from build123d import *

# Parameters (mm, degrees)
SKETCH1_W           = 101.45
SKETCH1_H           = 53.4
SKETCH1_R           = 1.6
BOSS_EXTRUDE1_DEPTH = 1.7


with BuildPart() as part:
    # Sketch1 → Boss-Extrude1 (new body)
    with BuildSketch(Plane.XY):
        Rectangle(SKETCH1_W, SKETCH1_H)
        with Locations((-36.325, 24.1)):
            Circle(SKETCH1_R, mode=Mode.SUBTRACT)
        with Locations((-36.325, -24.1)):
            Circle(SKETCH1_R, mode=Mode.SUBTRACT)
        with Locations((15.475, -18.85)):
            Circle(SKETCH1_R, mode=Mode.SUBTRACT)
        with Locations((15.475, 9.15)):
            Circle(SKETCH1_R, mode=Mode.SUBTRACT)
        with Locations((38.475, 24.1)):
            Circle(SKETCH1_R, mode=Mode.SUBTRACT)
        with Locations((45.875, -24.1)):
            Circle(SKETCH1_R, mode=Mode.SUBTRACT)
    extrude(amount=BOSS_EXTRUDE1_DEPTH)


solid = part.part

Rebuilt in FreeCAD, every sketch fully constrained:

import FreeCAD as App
import Part
import Sketcher
from FreeCAD import Vector
Q = App.Units.Quantity

doc = App.newDocument("Part")
body = doc.addObject("PartDesign::Body", "Body")

# Sketch on XY plane
sketch1 = body.newObject("Sketcher::SketchObject", "Sketch")
sketch1.AttachmentSupport = (doc.getObject("XY_Plane"), [""])
sketch1.MapMode = "FlatFace"
sketch1.addGeometry([
    Part.LineSegment(Vector(-50.7, 26.7, 0), Vector(-50.7, -26.7, 0)),  # 0
    Part.LineSegment(Vector(-50.7, -26.7, 0), Vector(50.7, -26.7, 0)),  # 1
    Part.LineSegment(Vector(50.7, -26.7, 0), Vector(50.7, 26.7, 0)),  # 2
    Part.LineSegment(Vector(50.7, 26.7, 0), Vector(-50.7, 26.7, 0)),  # 3
    Part.Circle(Vector(-36.3, -24.1, 0), Vector(0, 0, 1), 1.6),  # 4
    Part.Circle(Vector(15.5, -18.9, 0), Vector(0, 0, 1), 1.6),  # 5
    Part.Circle(Vector(45.9, -24.1, 0), Vector(0, 0, 1), 1.6),  # 6
    Part.Circle(Vector(-36.3, 24.1, 0), Vector(0, 0, 1), 1.6),  # 7
    Part.Circle(Vector(15.5, 9.2, 0), Vector(0, 0, 1), 1.6),  # 8
    Part.Circle(Vector(38.5, 24.1, 0), Vector(0, 0, 1), 1.6),  # 9
], False)
sketch1.addConstraint([
    Sketcher.Constraint("Coincident", 0, 2, 1, 1),
    Sketcher.Constraint("Coincident", 1, 2, 2, 1),
    Sketcher.Constraint("Coincident", 2, 2, 3, 1),
    Sketcher.Constraint("Coincident", 3, 2, 0, 1),
    Sketcher.Constraint("Vertical", 0),
    Sketcher.Constraint("Horizontal", 1),
    Sketcher.Constraint("Vertical", 2),
    Sketcher.Constraint("Horizontal", 3),
    Sketcher.Constraint("Equal", 4, 5),
    Sketcher.Constraint("Equal", 5, 6),
    Sketcher.Constraint("Equal", 6, 7),
    Sketcher.Constraint("Equal", 7, 8),
    Sketcher.Constraint("Equal", 8, 9),
    Sketcher.Constraint("Symmetric", 0, 2, 2, 2, -1, 1),
    Sketcher.Constraint("Symmetric", 4, 3, 7, 3, -1),
    Sketcher.Constraint("Horizontal", 4, 3, 6, 3),
    Sketcher.Constraint("Horizontal", 7, 3, 9, 3),
    Sketcher.Constraint("Vertical", 5, 3, 8, 3),
    Sketcher.Constraint("Diameter", 4, Q("3.2 mm")),
    Sketcher.Constraint("DistanceY", 0, 2, 0, 1, Q("53.4 mm")),
    Sketcher.Constraint("DistanceY", 5, 3, 8, 3, Q("28 mm")),
    Sketcher.Constraint("DistanceX", 8, 3, 9, 3, Q("23 mm")),
    Sketcher.Constraint("DistanceX", 1, 1, 1, 2, Q("101.45 mm")),
    Sketcher.Constraint("DistanceY", 4, 3, -1, 1, Q("24.1 mm")),
    Sketcher.Constraint("DistanceX", 4, 3, 5, 3, Q("51.8 mm")),
    Sketcher.Constraint("DistanceX", 5, 3, 6, 3, Q("30.4 mm")),
    Sketcher.Constraint("DistanceX", 0, 2, 4, 3, Q("14.4 mm")),
    Sketcher.Constraint("DistanceY", 5, 3, -1, 1, Q("18.85 mm")),
])
pad1 = body.newObject("PartDesign::Pad", "Pad")
pad1.Profile = sketch1
pad1.Length = 1.7

doc.recompute()
